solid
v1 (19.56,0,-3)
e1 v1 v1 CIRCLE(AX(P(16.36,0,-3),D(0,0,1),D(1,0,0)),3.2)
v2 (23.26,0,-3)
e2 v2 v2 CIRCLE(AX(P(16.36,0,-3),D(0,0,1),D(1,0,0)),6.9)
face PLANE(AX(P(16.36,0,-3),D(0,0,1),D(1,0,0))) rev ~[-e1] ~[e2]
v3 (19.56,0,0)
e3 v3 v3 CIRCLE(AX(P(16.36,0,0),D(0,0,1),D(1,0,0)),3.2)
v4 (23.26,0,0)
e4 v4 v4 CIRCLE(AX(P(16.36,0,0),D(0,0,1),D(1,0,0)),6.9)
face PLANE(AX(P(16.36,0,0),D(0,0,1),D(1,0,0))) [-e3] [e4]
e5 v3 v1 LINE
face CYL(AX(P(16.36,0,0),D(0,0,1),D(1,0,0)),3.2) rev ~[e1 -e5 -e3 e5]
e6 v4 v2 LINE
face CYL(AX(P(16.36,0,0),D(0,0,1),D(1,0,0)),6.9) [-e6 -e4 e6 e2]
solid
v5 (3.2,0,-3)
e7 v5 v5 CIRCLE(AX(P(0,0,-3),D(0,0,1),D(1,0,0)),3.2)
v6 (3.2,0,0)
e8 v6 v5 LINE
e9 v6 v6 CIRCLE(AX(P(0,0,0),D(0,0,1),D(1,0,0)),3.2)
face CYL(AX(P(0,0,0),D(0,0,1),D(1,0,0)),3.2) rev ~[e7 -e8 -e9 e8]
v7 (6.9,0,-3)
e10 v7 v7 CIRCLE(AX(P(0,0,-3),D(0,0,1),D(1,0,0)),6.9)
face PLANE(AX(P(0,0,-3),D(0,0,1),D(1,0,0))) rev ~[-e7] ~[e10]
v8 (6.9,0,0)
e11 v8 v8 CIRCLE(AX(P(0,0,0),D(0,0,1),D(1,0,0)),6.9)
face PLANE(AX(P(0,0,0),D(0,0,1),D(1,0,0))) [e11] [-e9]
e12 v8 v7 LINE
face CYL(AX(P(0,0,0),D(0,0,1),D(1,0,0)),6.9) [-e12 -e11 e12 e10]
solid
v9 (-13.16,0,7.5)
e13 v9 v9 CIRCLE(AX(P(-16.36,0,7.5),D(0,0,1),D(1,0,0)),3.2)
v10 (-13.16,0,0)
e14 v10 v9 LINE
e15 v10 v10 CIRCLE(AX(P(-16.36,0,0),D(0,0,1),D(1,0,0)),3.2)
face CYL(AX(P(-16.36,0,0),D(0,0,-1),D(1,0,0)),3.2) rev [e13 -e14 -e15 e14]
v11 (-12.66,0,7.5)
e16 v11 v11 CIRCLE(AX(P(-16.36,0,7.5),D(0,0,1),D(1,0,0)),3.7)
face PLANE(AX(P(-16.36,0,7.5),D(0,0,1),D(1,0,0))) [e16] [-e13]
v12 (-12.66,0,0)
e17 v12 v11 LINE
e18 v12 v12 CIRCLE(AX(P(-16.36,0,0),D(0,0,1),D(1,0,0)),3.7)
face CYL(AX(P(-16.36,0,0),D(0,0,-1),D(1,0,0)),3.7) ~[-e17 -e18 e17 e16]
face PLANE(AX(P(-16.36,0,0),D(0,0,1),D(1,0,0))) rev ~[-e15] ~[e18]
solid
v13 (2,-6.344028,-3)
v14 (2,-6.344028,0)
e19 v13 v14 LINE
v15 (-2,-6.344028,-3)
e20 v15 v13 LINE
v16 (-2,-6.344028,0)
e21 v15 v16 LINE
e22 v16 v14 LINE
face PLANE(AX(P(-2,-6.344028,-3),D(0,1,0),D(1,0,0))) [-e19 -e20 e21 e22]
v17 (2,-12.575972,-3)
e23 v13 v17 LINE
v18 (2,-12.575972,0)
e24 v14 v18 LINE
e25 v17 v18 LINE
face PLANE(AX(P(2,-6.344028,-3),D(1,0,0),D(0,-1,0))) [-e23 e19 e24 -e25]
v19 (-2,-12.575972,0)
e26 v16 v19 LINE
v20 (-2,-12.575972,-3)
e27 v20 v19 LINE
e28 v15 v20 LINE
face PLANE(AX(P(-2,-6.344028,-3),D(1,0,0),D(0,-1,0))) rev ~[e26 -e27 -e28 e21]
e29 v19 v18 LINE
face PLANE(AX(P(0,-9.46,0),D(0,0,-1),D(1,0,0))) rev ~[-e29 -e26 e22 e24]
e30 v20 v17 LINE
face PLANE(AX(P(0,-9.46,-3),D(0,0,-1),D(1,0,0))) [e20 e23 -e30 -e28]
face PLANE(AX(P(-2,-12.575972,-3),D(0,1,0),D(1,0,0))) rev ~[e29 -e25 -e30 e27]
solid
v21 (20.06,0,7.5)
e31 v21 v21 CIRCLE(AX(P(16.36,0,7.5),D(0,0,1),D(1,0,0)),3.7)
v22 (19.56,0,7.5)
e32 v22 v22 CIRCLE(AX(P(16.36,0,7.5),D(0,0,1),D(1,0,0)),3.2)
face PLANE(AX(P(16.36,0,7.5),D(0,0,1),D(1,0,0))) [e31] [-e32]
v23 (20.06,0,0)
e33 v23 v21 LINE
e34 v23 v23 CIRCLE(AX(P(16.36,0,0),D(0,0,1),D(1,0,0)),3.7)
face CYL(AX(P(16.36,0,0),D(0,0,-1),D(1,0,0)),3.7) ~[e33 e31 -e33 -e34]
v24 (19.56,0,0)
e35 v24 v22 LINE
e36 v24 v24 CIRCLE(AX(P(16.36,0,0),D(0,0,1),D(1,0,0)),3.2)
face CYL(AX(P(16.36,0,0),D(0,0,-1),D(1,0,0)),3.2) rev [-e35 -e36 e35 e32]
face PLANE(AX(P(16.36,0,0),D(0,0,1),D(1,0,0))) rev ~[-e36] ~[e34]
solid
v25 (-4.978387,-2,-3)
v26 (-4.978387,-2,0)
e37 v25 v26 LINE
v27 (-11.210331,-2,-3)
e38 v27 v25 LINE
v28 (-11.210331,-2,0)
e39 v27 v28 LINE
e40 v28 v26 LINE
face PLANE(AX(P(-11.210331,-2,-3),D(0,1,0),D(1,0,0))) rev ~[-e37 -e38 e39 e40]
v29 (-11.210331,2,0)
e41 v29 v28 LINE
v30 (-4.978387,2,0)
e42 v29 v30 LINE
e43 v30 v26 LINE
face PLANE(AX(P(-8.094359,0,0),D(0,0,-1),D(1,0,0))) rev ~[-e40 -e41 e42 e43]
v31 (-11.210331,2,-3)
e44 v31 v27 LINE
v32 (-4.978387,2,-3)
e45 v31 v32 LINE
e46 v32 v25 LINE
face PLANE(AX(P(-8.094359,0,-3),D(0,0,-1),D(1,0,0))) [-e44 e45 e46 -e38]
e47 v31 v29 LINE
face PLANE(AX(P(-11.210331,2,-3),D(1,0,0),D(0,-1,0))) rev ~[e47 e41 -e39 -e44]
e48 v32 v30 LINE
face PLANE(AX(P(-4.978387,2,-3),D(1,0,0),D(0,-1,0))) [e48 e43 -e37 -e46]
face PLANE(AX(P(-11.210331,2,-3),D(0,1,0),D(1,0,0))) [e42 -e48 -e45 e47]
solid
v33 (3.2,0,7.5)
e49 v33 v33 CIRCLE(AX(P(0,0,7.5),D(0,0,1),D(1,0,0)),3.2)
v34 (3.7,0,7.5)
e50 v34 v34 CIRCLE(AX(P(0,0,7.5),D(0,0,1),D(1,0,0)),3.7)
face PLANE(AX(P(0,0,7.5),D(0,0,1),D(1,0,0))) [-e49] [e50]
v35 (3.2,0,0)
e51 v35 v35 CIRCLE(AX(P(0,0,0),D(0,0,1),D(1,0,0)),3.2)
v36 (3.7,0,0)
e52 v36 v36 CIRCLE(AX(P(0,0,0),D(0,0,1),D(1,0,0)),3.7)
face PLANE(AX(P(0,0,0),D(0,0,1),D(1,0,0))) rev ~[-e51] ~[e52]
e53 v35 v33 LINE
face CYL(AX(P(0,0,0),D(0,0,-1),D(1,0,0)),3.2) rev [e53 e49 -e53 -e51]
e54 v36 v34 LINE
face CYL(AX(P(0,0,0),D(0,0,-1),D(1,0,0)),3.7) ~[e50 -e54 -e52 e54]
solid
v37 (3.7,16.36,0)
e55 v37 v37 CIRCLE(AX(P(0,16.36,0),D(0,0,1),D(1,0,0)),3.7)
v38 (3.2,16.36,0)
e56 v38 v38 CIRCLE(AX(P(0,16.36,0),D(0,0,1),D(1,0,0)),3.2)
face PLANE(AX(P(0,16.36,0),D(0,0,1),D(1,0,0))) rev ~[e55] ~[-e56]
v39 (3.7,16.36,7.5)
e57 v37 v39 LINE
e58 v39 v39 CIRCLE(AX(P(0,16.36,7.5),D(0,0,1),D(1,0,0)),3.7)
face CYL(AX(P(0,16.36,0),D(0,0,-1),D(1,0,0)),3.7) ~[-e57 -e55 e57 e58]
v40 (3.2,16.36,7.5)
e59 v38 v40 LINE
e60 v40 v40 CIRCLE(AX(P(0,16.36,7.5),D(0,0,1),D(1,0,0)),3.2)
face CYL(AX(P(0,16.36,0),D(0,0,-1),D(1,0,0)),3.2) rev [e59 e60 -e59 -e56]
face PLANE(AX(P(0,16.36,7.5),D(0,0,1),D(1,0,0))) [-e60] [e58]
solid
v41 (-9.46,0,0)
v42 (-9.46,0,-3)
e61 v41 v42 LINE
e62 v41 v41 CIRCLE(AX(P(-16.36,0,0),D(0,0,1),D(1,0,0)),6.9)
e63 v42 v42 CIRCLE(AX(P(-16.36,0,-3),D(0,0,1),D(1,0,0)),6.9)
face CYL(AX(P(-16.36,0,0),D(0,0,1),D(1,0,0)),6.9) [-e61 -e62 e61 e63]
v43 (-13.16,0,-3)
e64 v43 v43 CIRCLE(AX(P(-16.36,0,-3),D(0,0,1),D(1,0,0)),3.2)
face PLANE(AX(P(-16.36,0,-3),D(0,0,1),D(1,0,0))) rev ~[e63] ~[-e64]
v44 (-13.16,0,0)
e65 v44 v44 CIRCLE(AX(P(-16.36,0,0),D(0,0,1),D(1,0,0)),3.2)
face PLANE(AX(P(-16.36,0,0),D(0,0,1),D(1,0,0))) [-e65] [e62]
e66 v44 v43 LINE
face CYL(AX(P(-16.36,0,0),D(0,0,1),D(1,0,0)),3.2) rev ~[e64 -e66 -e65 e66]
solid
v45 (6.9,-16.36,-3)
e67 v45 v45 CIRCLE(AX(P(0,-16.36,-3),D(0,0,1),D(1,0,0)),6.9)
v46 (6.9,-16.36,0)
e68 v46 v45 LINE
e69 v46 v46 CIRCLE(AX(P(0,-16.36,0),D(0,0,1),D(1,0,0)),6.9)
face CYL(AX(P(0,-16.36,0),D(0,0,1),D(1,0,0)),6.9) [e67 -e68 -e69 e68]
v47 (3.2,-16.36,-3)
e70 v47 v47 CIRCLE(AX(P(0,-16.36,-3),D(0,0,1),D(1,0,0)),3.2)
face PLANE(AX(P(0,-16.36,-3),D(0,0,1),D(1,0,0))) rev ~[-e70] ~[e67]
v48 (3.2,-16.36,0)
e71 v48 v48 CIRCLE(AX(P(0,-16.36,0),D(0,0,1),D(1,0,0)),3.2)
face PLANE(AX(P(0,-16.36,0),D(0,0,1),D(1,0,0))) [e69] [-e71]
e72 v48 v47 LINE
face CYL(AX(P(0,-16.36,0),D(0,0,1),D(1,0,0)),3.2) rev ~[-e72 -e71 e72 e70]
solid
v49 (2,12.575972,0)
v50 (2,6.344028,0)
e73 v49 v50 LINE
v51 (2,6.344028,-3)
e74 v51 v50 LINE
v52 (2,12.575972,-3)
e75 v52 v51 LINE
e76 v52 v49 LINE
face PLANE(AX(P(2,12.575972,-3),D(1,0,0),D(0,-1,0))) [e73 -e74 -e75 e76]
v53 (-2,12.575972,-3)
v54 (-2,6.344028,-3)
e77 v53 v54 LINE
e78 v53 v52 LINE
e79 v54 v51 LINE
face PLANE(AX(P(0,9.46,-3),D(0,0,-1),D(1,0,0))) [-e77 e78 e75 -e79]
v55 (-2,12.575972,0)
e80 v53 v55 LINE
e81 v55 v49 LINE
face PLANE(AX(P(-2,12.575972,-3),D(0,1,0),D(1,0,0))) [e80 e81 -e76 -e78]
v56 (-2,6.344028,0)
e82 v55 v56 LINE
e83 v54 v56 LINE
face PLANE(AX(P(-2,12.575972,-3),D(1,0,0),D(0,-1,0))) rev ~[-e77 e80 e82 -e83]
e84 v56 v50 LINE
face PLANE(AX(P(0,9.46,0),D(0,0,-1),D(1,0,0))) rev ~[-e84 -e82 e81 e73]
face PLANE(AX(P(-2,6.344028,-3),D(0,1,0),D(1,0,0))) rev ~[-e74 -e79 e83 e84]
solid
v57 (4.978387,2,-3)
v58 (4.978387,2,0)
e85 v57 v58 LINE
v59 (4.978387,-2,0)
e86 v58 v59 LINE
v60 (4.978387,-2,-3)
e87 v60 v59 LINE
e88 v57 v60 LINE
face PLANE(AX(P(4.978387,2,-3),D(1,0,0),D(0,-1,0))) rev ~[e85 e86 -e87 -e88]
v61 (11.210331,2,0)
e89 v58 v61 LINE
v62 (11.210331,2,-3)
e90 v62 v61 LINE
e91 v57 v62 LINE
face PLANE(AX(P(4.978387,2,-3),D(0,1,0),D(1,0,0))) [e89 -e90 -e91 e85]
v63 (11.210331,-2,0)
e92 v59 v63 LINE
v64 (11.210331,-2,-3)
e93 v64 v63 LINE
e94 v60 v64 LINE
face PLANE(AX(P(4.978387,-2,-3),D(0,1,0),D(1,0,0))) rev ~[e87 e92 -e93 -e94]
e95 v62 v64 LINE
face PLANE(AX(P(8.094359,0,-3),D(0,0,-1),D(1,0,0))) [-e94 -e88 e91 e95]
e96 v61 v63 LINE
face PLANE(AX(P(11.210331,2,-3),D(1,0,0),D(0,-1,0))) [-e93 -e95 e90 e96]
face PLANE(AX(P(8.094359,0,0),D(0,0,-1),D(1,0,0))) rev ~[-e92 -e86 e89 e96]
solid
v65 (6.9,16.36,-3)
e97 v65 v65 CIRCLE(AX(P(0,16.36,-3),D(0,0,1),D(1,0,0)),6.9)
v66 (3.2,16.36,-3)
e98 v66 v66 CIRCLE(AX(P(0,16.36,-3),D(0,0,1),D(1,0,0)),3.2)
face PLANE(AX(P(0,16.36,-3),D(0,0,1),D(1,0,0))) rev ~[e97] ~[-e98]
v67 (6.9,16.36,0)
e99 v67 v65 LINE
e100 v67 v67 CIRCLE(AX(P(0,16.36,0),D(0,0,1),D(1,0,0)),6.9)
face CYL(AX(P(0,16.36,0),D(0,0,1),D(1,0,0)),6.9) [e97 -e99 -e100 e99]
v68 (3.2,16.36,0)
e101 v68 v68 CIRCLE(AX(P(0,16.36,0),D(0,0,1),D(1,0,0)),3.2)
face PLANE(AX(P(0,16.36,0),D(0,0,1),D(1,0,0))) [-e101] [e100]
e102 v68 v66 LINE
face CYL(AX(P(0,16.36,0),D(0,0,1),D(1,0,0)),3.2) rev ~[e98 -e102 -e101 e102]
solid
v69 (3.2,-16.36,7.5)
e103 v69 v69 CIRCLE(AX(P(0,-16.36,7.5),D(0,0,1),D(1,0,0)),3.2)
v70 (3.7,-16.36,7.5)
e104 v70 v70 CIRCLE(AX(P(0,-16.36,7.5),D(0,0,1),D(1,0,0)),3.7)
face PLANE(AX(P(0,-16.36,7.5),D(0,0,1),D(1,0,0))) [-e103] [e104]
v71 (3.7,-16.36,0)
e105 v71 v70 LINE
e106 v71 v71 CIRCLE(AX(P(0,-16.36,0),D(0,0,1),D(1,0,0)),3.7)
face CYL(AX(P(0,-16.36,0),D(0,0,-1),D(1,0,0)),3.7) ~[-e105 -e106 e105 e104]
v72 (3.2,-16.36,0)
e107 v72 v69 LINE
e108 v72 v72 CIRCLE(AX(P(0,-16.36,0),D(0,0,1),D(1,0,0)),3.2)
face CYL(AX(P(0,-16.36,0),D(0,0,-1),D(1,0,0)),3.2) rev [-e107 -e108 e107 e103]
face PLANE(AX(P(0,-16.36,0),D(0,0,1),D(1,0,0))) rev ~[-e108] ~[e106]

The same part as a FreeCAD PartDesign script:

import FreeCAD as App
import Part
import Sketcher
from FreeCAD import Vector

doc = App.newDocument("Part")
body = doc.addObject("PartDesign::Body", "Body")
body.AllowCompound = True

sketch1 = doc.addObject("Sketcher::SketchObject", "Sketch")
body.addObject(sketch1)
sketch1.AttachmentSupport = (doc.XY_Plane, [""])
sketch1.MapMode = "FlatFace"
sketch1.addGeometry([
    Part.Circle(Vector(0, 0, 0), Vector(0, 0, 1), 3.7),
    Part.Circle(Vector(0, 0, 0), Vector(0, 0, 1), 3.2),
    Part.Circle(Vector(0, 16.36, 0), Vector(0, 0, 1), 3.7),
    Part.Circle(Vector(0, 16.36, 0), Vector(0, 0, 1), 3.2),
    Part.Circle(Vector(0, -16.36, 0), Vector(0, 0, 1), 3.7),
    Part.Circle(Vector(0, -16.36, 0), Vector(0, 0, 1), 3.2),
    Part.Circle(Vector(16.36, 0, 0), Vector(0, 0, 1), 3.7),
    Part.Circle(Vector(16.36, 0, 0), Vector(0, 0, 1), 3.2),
    Part.Circle(Vector(-16.36, 0, 0), Vector(0, 0, 1), 3.7),
    Part.Circle(Vector(-16.36, 0, 0), Vector(0, 0, 1), 3.2),
], False)
sketch1.addConstraint([
    Sketcher.Constraint("Coincident", 0, 3, -1, 1),
    Sketcher.Constraint("Coincident", 1, 3, -1, 1),
    Sketcher.Constraint("Coincident", 3, 3, 2, 3),
    Sketcher.Constraint("Coincident", 5, 3, 4, 3),
    Sketcher.Constraint("Coincident", 7, 3, 6, 3),
    Sketcher.Constraint("Coincident", 9, 3, 8, 3),
    Sketcher.Constraint("Equal", 0, 2),
    Sketcher.Constraint("Equal", 1, 3),
    Sketcher.Constraint("Equal", 2, 4),
    Sketcher.Constraint("Equal", 3, 5),
    Sketcher.Constraint("Equal", 4, 6),
    Sketcher.Constraint("Equal", 5, 7),
    Sketcher.Constraint("Equal", 6, 8),
    Sketcher.Constraint("Equal", 7, 9),
    Sketcher.Constraint("Symmetric", 2, 3, 4, 3, -1, 1),
    Sketcher.Constraint("Symmetric", 6, 3, 8, 3, -1, 1),
    Sketcher.Constraint("PointOnObject", 2, 3, -2),
    Sketcher.Constraint("PointOnObject", 6, 3, -1),
    Sketcher.Constraint("Diameter", 0, 7.4),
    Sketcher.Constraint("Diameter", 1, 6.4),
    Sketcher.Constraint("DistanceY", -1, 1, 2, 3, 16.36),
    Sketcher.Constraint("DistanceX", -1, 1, 6, 3, 16.36),
])
pad1 = doc.addObject("PartDesign::Pad", "Pad")
body.addObject(pad1)
pad1.Profile = sketch1
pad1.Length = 7.5
body2 = doc.addObject("PartDesign::Body", "Body001")
body2.AllowCompound = True

sketch2 = doc.addObject("Sketcher::SketchObject", "Sketch001")
body2.addObject(sketch2)
sketch2.AttachmentSupport = (doc.getObject("XY_Plane001"), [""])
sketch2.MapMode = "FlatFace"
sketch2.addGeometry([
    Part.Circle(Vector(0, 0, 0), Vector(0, 0, 1), 6.9),
    Part.Circle(Vector(0, 0, 0), Vector(0, 0, 1), 3.2),
    Part.Circle(Vector(16.36, 0, 0), Vector(0, 0, 1), 6.9),
    Part.Circle(Vector(16.36, 0, 0), Vector(0, 0, 1), 3.2),
    Part.Circle(Vector(0, 16.36, 0), Vector(0, 0, 1), 6.9),
    Part.Circle(Vector(0, 16.36, 0), Vector(0, 0, 1), 3.2),
    Part.Circle(Vector(0, -16.36, 0), Vector(0, 0, 1), 6.9),
    Part.Circle(Vector(0, -16.36, 0), Vector(0, 0, 1), 3.2),
    Part.Circle(Vector(-16.36, 0, 0), Vector(0, 0, 1), 6.9),
    Part.Circle(Vector(-16.36, 0, 0), Vector(0, 0, 1), 3.2),
], False)
sketch2.addConstraint([
    Sketcher.Constraint("Coincident", 0, 3, -1, 1),
    Sketcher.Constraint("Coincident", 1, 3, -1, 1),
    Sketcher.Constraint("Coincident", 3, 3, 2, 3),
    Sketcher.Constraint("Coincident", 5, 3, 4, 3),
    Sketcher.Constraint("Coincident", 7, 3, 6, 3),
    Sketcher.Constraint("Coincident", 9, 3, 8, 3),
    Sketcher.Constraint("Equal", 0, 2),
    Sketcher.Constraint("Equal", 1, 3),
    Sketcher.Constraint("Equal", 2, 4),
    Sketcher.Constraint("Equal", 3, 5),
    Sketcher.Constraint("Equal", 4, 6),
    Sketcher.Constraint("Equal", 5, 7),
    Sketcher.Constraint("Equal", 6, 8),
    Sketcher.Constraint("Equal", 7, 9),
    Sketcher.Constraint("Symmetric", 4, 3, 6, 3, -1, 1),
    Sketcher.Constraint("Symmetric", 2, 3, 8, 3, -1, 1),
    Sketcher.Constraint("PointOnObject", 2, 3, -1),
    Sketcher.Constraint("PointOnObject", 4, 3, -2),
    Sketcher.Constraint("Diameter", 0, 13.8),
    Sketcher.Constraint("Diameter", 1, 6.4),
    Sketcher.Constraint("DistanceX", -1, 1, 2, 3, 16.36),
    Sketcher.Constraint("DistanceY", -1, 1, 4, 3, 16.36),
])
pad2 = doc.addObject("PartDesign::Pad", "Pad001")
body2.addObject(pad2)
pad2.Profile = sketch2
pad2.Length = 3
pad2.Reversed = True
body3 = doc.addObject("PartDesign::Body", "Body002")
body3.AllowCompound = True

sketch3 = doc.addObject("Sketcher::SketchObject", "Sketch002")
body3.addObject(sketch3)
sketch3.AttachmentSupport = (doc.getObject("XY_Plane002"), [""])
sketch3.MapMode = "FlatFace"
sketch3.AttachmentOffset = App.Placement(Vector(0, 0, -3), App.Rotation())
sketch3.addGeometry([
    Part.LineSegment(Vector(-2, -12.575972, 0), Vector(-2, -6.344028, 0)),
    Part.LineSegment(Vector(-2, -6.344028, 0), Vector(2, -6.344028, 0)),
    Part.LineSegment(Vector(2, -6.344028, 0), Vector(2, -12.575972, 0)),
    Part.LineSegment(Vector(2, -12.575972, 0), Vector(-2, -12.575972, 0)),
    Part.LineSegment(Vector(-2, 6.344028, 0), Vector(-2, 12.575972, 0)),
    Part.LineSegment(Vector(-2, 12.575972, 0), Vector(2, 12.575972, 0)),
    Part.LineSegment(Vector(2, 12.575972, 0), Vector(2, 6.344028, 0)),
    Part.LineSegment(Vector(2, 6.344028, 0), Vector(-2, 6.344028, 0)),
    Part.LineSegment(Vector(-11.210331, -2, 0), Vector(-11.210331, 2, 0)),
    Part.LineSegment(Vector(-11.210331, 2, 0), Vector(-4.978387, 2, 0)),
    Part.LineSegment(Vector(-4.978387, 2, 0), Vector(-4.978387, -2, 0)),
    Part.LineSegment(Vector(-4.978387, -2, 0), Vector(-11.210331, -2, 0)),
    Part.LineSegment(Vector(4.978387, -2, 0), Vector(4.978387, 2, 0)),
    Part.LineSegment(Vector(4.978387, 2, 0), Vector(11.210331, 2, 0)),
    Part.LineSegment(Vector(11.210331, 2, 0), Vector(11.210331, -2, 0)),
    Part.LineSegment(Vector(11.210331, -2, 0), Vector(4.978387, -2, 0)),
], False)
sketch3.addConstraint([
    Sketcher.Constraint("Coincident", 0, 2, 1, 1),
    Sketcher.Constraint("Coincident", 1, 2, 2, 1),
    Sketcher.Constraint("Coincident", 2, 2, 3, 1),
    Sketcher.Constraint("Coincident", 3, 2, 0, 1),
    Sketcher.Constraint("Coincident", 4, 2, 5, 1),
    Sketcher.Constraint("Coincident", 5, 2, 6, 1),
    Sketcher.Constraint("Coincident", 6, 2, 7, 1),
    Sketcher.Constraint("Coincident", 7, 2, 4, 1),
    Sketcher.Constraint("Coincident", 8, 2, 9, 1),
    Sketcher.Constraint("Coincident", 9, 2, 10, 1),
    Sketcher.Constraint("Coincident", 10, 2, 11, 1),
    Sketcher.Constraint("Coincident", 11, 2, 8, 1),
    Sketcher.Constraint("Coincident", 12, 2, 13, 1),
    Sketcher.Constraint("Coincident", 13, 2, 14, 1),
    Sketcher.Constraint("Coincident", 14, 2, 15, 1),
    Sketcher.Constraint("Coincident", 15, 2, 12, 1),
    Sketcher.Constraint("Vertical", 0),
    Sketcher.Constraint("Horizontal", 1),
    Sketcher.Constraint("Vertical", 2),
    Sketcher.Constraint("Horizontal", 3),
    Sketcher.Constraint("Vertical", 4),
    Sketcher.Constraint("Horizontal", 5),
    Sketcher.Constraint("Vertical", 6),
    Sketcher.Constraint("Horizontal", 7),
    Sketcher.Constraint("Vertical", 8),
    Sketcher.Constraint("Horizontal", 9),
    Sketcher.Constraint("Vertical", 10),
    Sketcher.Constraint("Horizontal", 11),
    Sketcher.Constraint("Vertical", 12),
    Sketcher.Constraint("Horizontal", 13),
    Sketcher.Constraint("Vertical", 14),
    Sketcher.Constraint("Horizontal", 15),
    Sketcher.Constraint("Symmetric", 2, 2, 4, 2, -1, 1),
    Sketcher.Constraint("Symmetric", 0, 2, 6, 2, -1, 1),
    Sketcher.Constraint("Symmetric", 10, 2, 12, 2, -1, 1),
    Sketcher.Constraint("Symmetric", 8, 2, 14, 2, -1, 1),
    Sketcher.Constraint("Horizontal", 9, 2, 12, 2),
    Sketcher.Constraint("Vertical", 3, 2, 4, 2),
    Sketcher.Constraint("Equal", 15, 0),
    Sketcher.Constraint("Equal", 7, 8),
    Sketcher.Constraint("DistanceX", 1, 1, 1, 2, 4.0),
    Sketcher.Constraint("DistanceY", 0, 2, 4, 2, 18.92),
    Sketcher.Constraint("DistanceX", 9, 1, 9, 2, 6.231944),
    Sketcher.Constraint("DistanceX", 8, 2, -1, 1, 11.210331),
])
pad3 = doc.addObject("PartDesign::Pad", "Pad002")
body3.addObject(pad3)
pad3.Profile = sketch3
pad3.Length = 3

doc.recompute()
